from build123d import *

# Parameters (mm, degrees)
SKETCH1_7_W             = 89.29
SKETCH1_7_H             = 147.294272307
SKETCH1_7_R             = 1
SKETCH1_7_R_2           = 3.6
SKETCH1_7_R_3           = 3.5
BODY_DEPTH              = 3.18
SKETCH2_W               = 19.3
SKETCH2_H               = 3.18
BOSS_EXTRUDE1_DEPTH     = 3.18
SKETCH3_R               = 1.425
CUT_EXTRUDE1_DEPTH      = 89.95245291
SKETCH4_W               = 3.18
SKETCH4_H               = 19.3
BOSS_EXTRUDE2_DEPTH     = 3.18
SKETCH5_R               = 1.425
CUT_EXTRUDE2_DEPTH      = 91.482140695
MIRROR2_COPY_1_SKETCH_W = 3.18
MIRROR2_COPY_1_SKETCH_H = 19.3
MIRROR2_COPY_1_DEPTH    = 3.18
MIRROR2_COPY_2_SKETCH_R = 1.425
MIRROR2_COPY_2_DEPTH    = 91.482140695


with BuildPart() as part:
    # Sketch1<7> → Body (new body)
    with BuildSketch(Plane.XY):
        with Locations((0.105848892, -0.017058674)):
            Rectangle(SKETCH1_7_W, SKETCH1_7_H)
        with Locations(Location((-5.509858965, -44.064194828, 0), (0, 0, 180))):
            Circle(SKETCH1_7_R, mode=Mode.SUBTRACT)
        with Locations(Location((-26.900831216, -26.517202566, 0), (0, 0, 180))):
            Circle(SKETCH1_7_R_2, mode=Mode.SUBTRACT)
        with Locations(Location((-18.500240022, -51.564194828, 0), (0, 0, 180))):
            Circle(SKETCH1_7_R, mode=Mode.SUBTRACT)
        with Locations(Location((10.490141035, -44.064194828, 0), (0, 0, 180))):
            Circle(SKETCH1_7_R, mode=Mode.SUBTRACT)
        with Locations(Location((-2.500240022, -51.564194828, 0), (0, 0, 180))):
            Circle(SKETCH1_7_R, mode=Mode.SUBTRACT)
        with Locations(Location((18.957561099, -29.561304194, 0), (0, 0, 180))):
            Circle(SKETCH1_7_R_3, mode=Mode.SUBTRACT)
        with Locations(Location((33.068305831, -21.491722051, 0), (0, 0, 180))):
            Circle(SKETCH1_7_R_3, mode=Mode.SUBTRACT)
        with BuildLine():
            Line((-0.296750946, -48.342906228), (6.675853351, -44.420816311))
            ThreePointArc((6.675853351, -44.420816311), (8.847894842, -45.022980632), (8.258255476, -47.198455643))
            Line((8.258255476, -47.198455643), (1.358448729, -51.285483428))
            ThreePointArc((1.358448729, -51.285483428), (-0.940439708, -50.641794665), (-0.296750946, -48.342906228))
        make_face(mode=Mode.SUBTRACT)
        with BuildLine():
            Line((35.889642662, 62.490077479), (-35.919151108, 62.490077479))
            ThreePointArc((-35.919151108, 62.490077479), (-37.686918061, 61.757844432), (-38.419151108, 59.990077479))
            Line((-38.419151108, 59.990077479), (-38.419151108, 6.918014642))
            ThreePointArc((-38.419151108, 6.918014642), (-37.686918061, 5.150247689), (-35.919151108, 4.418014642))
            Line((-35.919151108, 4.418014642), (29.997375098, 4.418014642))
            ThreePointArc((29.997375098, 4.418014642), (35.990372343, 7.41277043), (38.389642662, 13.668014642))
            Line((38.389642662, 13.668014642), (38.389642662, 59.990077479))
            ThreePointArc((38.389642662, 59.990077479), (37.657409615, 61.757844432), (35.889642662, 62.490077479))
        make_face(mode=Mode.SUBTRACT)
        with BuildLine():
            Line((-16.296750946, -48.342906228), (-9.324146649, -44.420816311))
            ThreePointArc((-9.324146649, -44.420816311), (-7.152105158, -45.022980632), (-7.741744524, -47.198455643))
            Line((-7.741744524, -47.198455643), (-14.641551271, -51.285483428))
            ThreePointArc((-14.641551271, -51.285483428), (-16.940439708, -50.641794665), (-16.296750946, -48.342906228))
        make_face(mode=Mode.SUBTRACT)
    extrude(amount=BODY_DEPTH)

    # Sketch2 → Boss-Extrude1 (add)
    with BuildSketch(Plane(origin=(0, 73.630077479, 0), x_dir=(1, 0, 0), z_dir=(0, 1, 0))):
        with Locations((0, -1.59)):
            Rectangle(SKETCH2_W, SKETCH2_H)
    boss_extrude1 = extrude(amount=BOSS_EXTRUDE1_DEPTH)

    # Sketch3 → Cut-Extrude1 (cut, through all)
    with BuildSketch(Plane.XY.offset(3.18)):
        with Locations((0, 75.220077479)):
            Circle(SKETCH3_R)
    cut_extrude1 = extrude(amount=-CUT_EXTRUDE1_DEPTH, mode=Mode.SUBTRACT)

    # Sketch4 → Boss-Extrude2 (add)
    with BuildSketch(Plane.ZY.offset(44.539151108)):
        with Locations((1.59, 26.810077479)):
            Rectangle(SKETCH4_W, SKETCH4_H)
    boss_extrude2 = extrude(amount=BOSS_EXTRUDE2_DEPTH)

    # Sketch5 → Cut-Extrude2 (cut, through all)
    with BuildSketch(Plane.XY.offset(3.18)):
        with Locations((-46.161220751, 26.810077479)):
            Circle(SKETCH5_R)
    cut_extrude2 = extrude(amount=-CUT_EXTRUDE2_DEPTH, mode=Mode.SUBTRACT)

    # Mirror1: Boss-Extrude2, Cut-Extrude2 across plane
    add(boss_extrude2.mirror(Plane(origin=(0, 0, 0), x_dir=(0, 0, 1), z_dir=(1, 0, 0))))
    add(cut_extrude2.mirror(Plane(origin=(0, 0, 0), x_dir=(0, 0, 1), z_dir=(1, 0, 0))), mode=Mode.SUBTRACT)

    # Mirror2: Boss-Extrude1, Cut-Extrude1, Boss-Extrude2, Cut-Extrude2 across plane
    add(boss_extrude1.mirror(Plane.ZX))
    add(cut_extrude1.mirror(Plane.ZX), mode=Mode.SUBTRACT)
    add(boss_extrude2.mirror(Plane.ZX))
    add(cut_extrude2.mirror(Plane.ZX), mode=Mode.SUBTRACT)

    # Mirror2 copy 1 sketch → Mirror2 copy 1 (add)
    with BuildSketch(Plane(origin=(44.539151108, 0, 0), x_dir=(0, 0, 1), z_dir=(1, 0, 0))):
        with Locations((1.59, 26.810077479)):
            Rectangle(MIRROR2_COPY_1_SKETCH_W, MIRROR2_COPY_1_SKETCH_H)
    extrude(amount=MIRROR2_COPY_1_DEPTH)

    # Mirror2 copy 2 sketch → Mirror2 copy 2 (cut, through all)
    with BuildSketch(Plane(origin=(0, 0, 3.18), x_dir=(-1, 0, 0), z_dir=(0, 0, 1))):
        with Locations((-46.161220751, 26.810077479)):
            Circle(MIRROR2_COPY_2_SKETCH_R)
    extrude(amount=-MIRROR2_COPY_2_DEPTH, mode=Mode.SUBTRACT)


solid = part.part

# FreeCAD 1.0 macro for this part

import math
import FreeCAD as App
import Part
import Sketcher
from FreeCAD import Vector
Q = App.Units.Quantity

doc = App.newDocument("Part")
body = doc.addObject("PartDesign::Body", "Body")

# Sketch on XY plane
sketch1 = doc.addObject("Sketcher::SketchObject", "Sketch")
body.addObject(sketch1)
sketch1.AttachmentSupport = (doc.XY_Plane, [""])
sketch1.MapMode = "FlatFace"
sketch1.addGeometry([
    Part.LineSegment(Vector(-44.5, 73.6, 0), Vector(-44.5, -73.7, 0)),  # 0
    Part.LineSegment(Vector(-44.5, -73.7, 0), Vector(44.8, -73.7, 0)),  # 1
    Part.LineSegment(Vector(44.8, -73.7, 0), Vector(44.8, 73.6, 0)),  # 2
    Part.LineSegment(Vector(44.8, 73.6, 0), Vector(-44.5, 73.6, 0)),  # 3
    Part.Circle(Vector(-26.9, -26.5, 0), Vector(0, 0, 1), 3.6),  # 4
    Part.Circle(Vector(-18.5, -51.6, 0), Vector(0, 0, 1), 1),  # 5
    Part.ArcOfCircle(Part.Circle(Vector(-15.5, -49.8, 0), Vector(0, 0, 1), 1.7), math.radians(119), math.radians(299)),  # 6
    Part.LineSegment(Vector(-16.3, -48.3, 0), Vector(-9.3, -44.4, 0)),  # 7
    Part.ArcOfCircle(Part.Circle(Vector(-8.5, -45.8, 0), Vector(0, 0, 1), 1.6), math.radians(-60), math.radians(119)),  # 8
    Part.LineSegment(Vector(-7.7, -47.2, 0), Vector(-14.6, -51.3, 0)),  # 9
    Part.Circle(Vector(-2.5, -51.6, 0), Vector(0, 0, 1), 1),  # 10
    Part.Circle(Vector(-5.5, -44.1, 0), Vector(0, 0, 1), 1),  # 11
    Part.ArcOfCircle(Part.Circle(Vector(0.5, -49.8, 0), Vector(0, 0, 1), 1.7), math.radians(119), math.radians(299)),  # 12
    Part.LineSegment(Vector(-0.3, -48.3, 0), Vector(6.7, -44.4, 0)),  # 13
    Part.ArcOfCircle(Part.Circle(Vector(7.5, -45.8, 0), Vector(0, 0, 1), 1.6), math.radians(-60), math.radians(119)),  # 14
    Part.LineSegment(Vector(8.3, -47.2, 0), Vector(1.4, -51.3, 0)),  # 15
    Part.Circle(Vector(10.5, -44.1, 0), Vector(0, 0, 1), 1),  # 16
    Part.Circle(Vector(19, -29.6, 0), Vector(0, 0, 1), 3.5),  # 17
    Part.Circle(Vector(33.1, -21.5, 0), Vector(0, 0, 1), 3.5),  # 18
    Part.LineSegment(Vector(-35.9, 62.5, 0), Vector(35.9, 62.5, 0)),  # 19
    Part.ArcOfCircle(Part.Circle(Vector(35.9, 60, 0), Vector(0, 0, 1), 2.5), math.radians(0), math.radians(90)),  # 20
    Part.LineSegment(Vector(38.4, 60, 0), Vector(38.4, 13.7, 0)),  # 21
    Part.ArcOfCircle(Part.Circle(Vector(29.1, 13.6, 0), Vector(0, 0, 1), 9.2), math.radians(-85), math.radians(0)),  # 22
    Part.LineSegment(Vector(30, 4.4, 0), Vector(-35.9, 4.4, 0)),  # 23
    Part.ArcOfCircle(Part.Circle(Vector(-35.9, 6.9, 0), Vector(0, 0, 1), 2.5), math.radians(180), math.radians(270)),  # 24
    Part.LineSegment(Vector(-38.4, 6.9, 0), Vector(-38.4, 60, 0)),  # 25
    Part.ArcOfCircle(Part.Circle(Vector(-35.9, 60, 0), Vector(0, 0, 1), 2.5), math.radians(90), math.radians(180)),  # 26
], False)
sketch1.addConstraint([
    Sketcher.Constraint("Coincident", 0, 2, 1, 1),
    Sketcher.Constraint("Coincident", 1, 2, 2, 1),
    Sketcher.Constraint("Coincident", 2, 2, 3, 1),
    Sketcher.Constraint("Coincident", 3, 2, 0, 1),
    Sketcher.Constraint("Tangent", 6, 1, 7, 1),
    Sketcher.Constraint("Coincident", 7, 2, 8, 2),
    Sketcher.Constraint("Coincident", 8, 1, 9, 1),
    Sketcher.Constraint("Coincident", 9, 2, 6, 2),
    Sketcher.Constraint("Tangent", 12, 1, 13, 1),
    Sketcher.Constraint("Coincident", 13, 2, 14, 2),
    Sketcher.Constraint("Coincident", 14, 1, 15, 1),
    Sketcher.Constraint("Coincident", 15, 2, 12, 2),
    Sketcher.Constraint("Tangent", 19, 2, 20, 2),
    Sketcher.Constraint("Tangent", 20, 1, 21, 1),
    Sketcher.Constraint("Coincident", 21, 2, 22, 2),
    Sketcher.Constraint("Coincident", 22, 1, 23, 1),
    Sketcher.Constraint("Tangent", 23, 2, 24, 2),
    Sketcher.Constraint("Tangent", 24, 1, 25, 1),
    Sketcher.Constraint("Tangent", 25, 2, 26, 2),
    Sketcher.Constraint("Tangent", 26, 1, 19, 1),
    Sketcher.Constraint("Vertical", 0),
    Sketcher.Constraint("Horizontal", 1),
    Sketcher.Constraint("Vertical", 2),
    Sketcher.Constraint("Horizontal", 3),
    Sketcher.Constraint("Horizontal", 19),
    Sketcher.Constraint("Vertical", 21),
    Sketcher.Constraint("Horizontal", 23),
    Sketcher.Constraint("Vertical", 25),
    Sketcher.Constraint("Equal", 5, 10),
    Sketcher.Constraint("Equal", 10, 11),
    Sketcher.Constraint("Equal", 6, 12),
    Sketcher.Constraint("Equal", 8, 14),
    Sketcher.Constraint("Equal", 11, 16),
    Sketcher.Constraint("Equal", 17, 18),
    Sketcher.Constraint("Equal", 20, 24),
    Sketcher.Constraint("Equal", 24, 26),
    Sketcher.Constraint("Parallel", 7, 13),
    Sketcher.Constraint("Parallel", 9, 15),
    Sketcher.Constraint("Horizontal", 5, 3, 10, 3),
    Sketcher.Constraint("Horizontal", 6, 3, 12, 3),
    Sketcher.Constraint("Horizontal", 8, 3, 14, 3),
    Sketcher.Constraint("Horizontal", 11, 3, 16, 3),
    Sketcher.Constraint("Horizontal", 7, 2, 13, 2),
    Sketcher.Constraint("Horizontal", 8, 1, 14, 1),
    Sketcher.Constraint("Diameter", 5, Q("2 mm")),
    Sketcher.Constraint("Diameter", 17, Q("7 mm")),
    Sketcher.Constraint("Diameter", 4, Q("7.2 mm")),
    Sketcher.Constraint("Radius", 20, Q("2.5 mm")),
    Sketcher.Constraint("Radius", 22, Q("9.25 mm")),
    Sketcher.Constraint("Distance", 7, Q("8 mm")),
    Sketcher.Constraint("DistanceY", 6, 3, 8, 3, Q("4 mm")),
    Sketcher.Constraint("DistanceX", 5, 3, 10, 3, Q("16 mm")),
    Sketcher.Constraint("DistanceX", 6, 3, 12, 3, Q("16 mm")),
    Sketcher.Constraint("DistanceX", 11, 3, 16, 3, Q("16 mm")),
    Sketcher.Constraint("DistanceX", 1, 1, 1, 2, Q("89.29 mm")),
    Sketcher.Constraint("DistanceY", 10, 3, 11, 3, Q("7.5 mm")),
    Sketcher.Constraint("DistanceY", 0, 2, 5, 3, Q("22.1 mm")),
    Sketcher.Constraint("Radius", 6, Q("1.688079 mm")),
    Sketcher.Constraint("DistanceY", 5, 3, 6, 3, Q("1.75 mm")),
    Sketcher.Constraint("DistanceX", 24, 3, 6, 3, Q("20.45 mm")),
    Sketcher.Constraint("DistanceX", 0, 2, 6, 3, Q("29.07 mm")),
    Sketcher.Constraint("DistanceY", 20, 3, 2, 2, Q("13.64 mm")),
    Sketcher.Constraint("DistanceY", 22, 1, 21, 2, Q("9.25 mm")),
    Sketcher.Constraint("Radius", 8, Q("1.598407 mm")),
    Sketcher.Constraint("DistanceX", 10, 3, 17, 3, Q("21.457801 mm")),
    Sketcher.Constraint("DistanceY", 18, 3, 20, 3, Q("81.4818 mm")),
    Sketcher.Constraint("DistanceX", 16, 3, 20, 3, Q("25.399502 mm")),
    Sketcher.Constraint("DistanceX", 6, 1, 6, 3, Q("0.8276 mm")),
    Sketcher.Constraint("DistanceX", 6, 3, 9, 2, Q("0.8276 mm")),
    Sketcher.Constraint("DistanceX", 19, 1, 19, 2, Q("71.808794 mm")),
    Sketcher.Constraint("DistanceX", 23, 2, 23, 1, Q("65.916526 mm")),
    Sketcher.Constraint("DistanceY", 0, 2, 0, 1, Q("147.294272 mm")),
    Sketcher.Constraint("DistanceY", 21, 2, 21, 1, Q("46.322063 mm")),
    Sketcher.Constraint("DistanceX", 4, 3, -1, 1, Q("26.900831 mm")),
    Sketcher.Constraint("DistanceX", 5, 3, -1, 1, Q("18.50024 mm")),
    Sketcher.Constraint("DistanceX", 6, 3, -1, 1, Q("15.469151 mm")),
    Sketcher.Constraint("DistanceY", -1, 1, 22, 3, Q("13.628169 mm")),
    Sketcher.Constraint("DistanceY", 16, 3, 17, 3, Q("14.502891 mm")),
    Sketcher.Constraint("DistanceY", 4, 3, 20, 3, Q("86.50728 mm")),
    Sketcher.Constraint("DistanceY", 8, 1, 8, 3, Q("1.384261 mm")),
    Sketcher.Constraint("DistanceX", 22, 1, 18, 3, Q("3.070931 mm")),
])
pad1 = doc.addObject("PartDesign::Pad", "Pad")
body.addObject(pad1)
pad1.Profile = sketch1
pad1.Length = 3.18

# Sketch on XZ plane
sketch2 = doc.addObject("Sketcher::SketchObject", "Sketch001")
body.addObject(sketch2)
sketch2.AttachmentSupport = (doc.XZ_Plane, [""])
sketch2.MapMode = "FlatFace"
sketch2.AttachmentOffset = App.Placement(Vector(0, 0, -73.630077), App.Rotation())
sketch2.addGeometry([
    Part.LineSegment(Vector(-9.7, 0, 0), Vector(-9.7, 3.2, 0)),
    Part.LineSegment(Vector(-9.7, 3.2, 0), Vector(9.7, 3.2, 0)),
    Part.LineSegment(Vector(9.7, 3.2, 0), Vector(9.7, 0, 0)),
    Part.LineSegment(Vector(9.7, 0, 0), Vector(-9.7, 0, 0)),
], False)
sketch2.addConstraint([
    Sketcher.Constraint("Coincident", 0, 2, 1, 1),
    Sketcher.Constraint("Coincident", 1, 2, 2, 1),
    Sketcher.Constraint("Coincident", 2, 2, 3, 1),
    Sketcher.Constraint("Coincident", 3, 2, 0, 1),
    Sketcher.Constraint("Vertical", 0),
    Sketcher.Constraint("Horizontal", 1),
    Sketcher.Constraint("Vertical", 2),
    Sketcher.Constraint("Horizontal", 3),
    Sketcher.Constraint("Symmetric", 2, 2, 3, 2, -1, 1),
    Sketcher.Constraint("DistanceX", 1, 1, 1, 2, Q("19.3 mm")),
    Sketcher.Constraint("DistanceY", 0, 1, 0, 2, Q("3.18 mm")),
])
pad2 = doc.addObject("PartDesign::Pad", "Pad001")
body.addObject(pad2)
pad2.Profile = sketch2
pad2.Length = 3.18
pad2.Reversed = True

# Sketch on XY plane
sketch3 = doc.addObject("Sketcher::SketchObject", "Sketch002")
body.addObject(sketch3)
sketch3.AttachmentSupport = (doc.XY_Plane, [""])
sketch3.MapMode = "FlatFace"
sketch3.AttachmentOffset = App.Placement(Vector(0, 0, 3.18), App.Rotation())
sketch3.addGeometry(Part.Circle(Vector(0, 75.2, 0), Vector(0, 0, 1), 1.4), False)
sketch3.addConstraint([
    Sketcher.Constraint("PointOnObject", 0, 3, -2),
    Sketcher.Constraint("Diameter", 0, Q("2.85 mm")),
    Sketcher.Constraint("DistanceY", -1, 1, 0, 3, Q("75.220077 mm")),
])
pocket1 = doc.addObject("PartDesign::Pocket", "Pocket")
body.addObject(pocket1)
pocket1.Profile = sketch3
pocket1.Type = "ThroughAll"

# Sketch on YZ plane
sketch4 = doc.addObject("Sketcher::SketchObject", "Sketch003")
body.addObject(sketch4)
sketch4.AttachmentSupport = (doc.YZ_Plane, [""])
sketch4.MapMode = "FlatFace"
sketch4.AttachmentOffset = App.Placement(Vector(0, 0, -44.539151), App.Rotation())
sketch4.addGeometry([
    Part.LineSegment(Vector(36.5, 0, 0), Vector(17.2, 0, 0)),
    Part.LineSegment(Vector(17.2, 0, 0), Vector(17.2, 3.2, 0)),
    Part.LineSegment(Vector(17.2, 3.2, 0), Vector(36.5, 3.2, 0)),
    Part.LineSegment(Vector(36.5, 3.2, 0), Vector(36.5, 0, 0)),
], False)
sketch4.addConstraint([
    Sketcher.Constraint("Coincident", 0, 2, 1, 1),
    Sketcher.Constraint("Coincident", 1, 2, 2, 1),
    Sketcher.Constraint("Coincident", 2, 2, 3, 1),
    Sketcher.Constraint("Coincident", 3, 2, 0, 1),
    Sketcher.Constraint("Horizontal", 0),
    Sketcher.Constraint("Vertical", 1),
    Sketcher.Constraint("Horizontal", 2),
    Sketcher.Constraint("Vertical", 3),
    Sketcher.Constraint("PointOnObject", 0, 2, -1),
    Sketcher.Constraint("DistanceX", 0, 2, 0, 1, Q("19.3 mm")),
    Sketcher.Constraint("DistanceY", 1, 1, 1, 2, Q("3.18 mm")),
    Sketcher.Constraint("DistanceX", -1, 1, 0, 2, Q("17.160077 mm")),
])
pad3 = doc.addObject("PartDesign::Pad", "Pad002")
body.addObject(pad3)
pad3.Profile = sketch4
pad3.Length = 3.18
pad3.Reversed = True

# Sketch on XY plane
sketch5 = doc.addObject("Sketcher::SketchObject", "Sketch004")
body.addObject(sketch5)
sketch5.AttachmentSupport = (doc.XY_Plane, [""])
sketch5.MapMode = "FlatFace"
sketch5.AttachmentOffset = App.Placement(Vector(0, 0, 3.18), App.Rotation())
sketch5.addGeometry(Part.Circle(Vector(-46.2, 26.8, 0), Vector(0, 0, 1), 1.4), False)
sketch5.addConstraint([
    Sketcher.Constraint("Diameter", 0, Q("2.85 mm")),
    Sketcher.Constraint("DistanceX", 0, 3, -1, 1, Q("46.161221 mm")),
    Sketcher.Constraint("DistanceY", -1, 1, 0, 3, Q("26.810077 mm")),
])
pocket2 = doc.addObject("PartDesign::Pocket", "Pocket001")
body.addObject(pocket2)
pocket2.Profile = sketch5
pocket2.Type = "ThroughAll"
doc.recompute()

mirrored = doc.addObject("PartDesign::Mirrored", "Mirrored")
body.addObject(mirrored)
mirrored.Originals = [pad3, pocket2]
mirrored.MirrorPlane = (doc.YZ_Plane, [""])
body.Tip = mirrored
doc.recompute()

mirrored2 = doc.addObject("PartDesign::Mirrored", "Mirrored001")
body.addObject(mirrored2)
mirrored2.Originals = [pad2, pocket1, pad3, pocket2]
mirrored2.MirrorPlane = (doc.XZ_Plane, [""])
body.Tip = mirrored2

# Sketch on YZ plane
sketch6 = doc.addObject("Sketcher::SketchObject", "Sketch005")
body.addObject(sketch6)
sketch6.AttachmentSupport = (doc.YZ_Plane, [""])
sketch6.MapMode = "FlatFace"
sketch6.AttachmentOffset = App.Placement(Vector(0, 0, 44.539151), App.Rotation())
sketch6.addGeometry([
    Part.LineSegment(Vector(-36.5, 0, 0), Vector(-17.2, 0, 0)),
    Part.LineSegment(Vector(-17.2, 0, 0), Vector(-17.2, 3.2, 0)),
    Part.LineSegment(Vector(-17.2, 3.2, 0), Vector(-36.5, 3.2, 0)),
    Part.LineSegment(Vector(-36.5, 3.2, 0), Vector(-36.5, 0, 0)),
], False)
sketch6.addConstraint([
    Sketcher.Constraint("Coincident", 0, 2, 1, 1),
    Sketcher.Constraint("Coincident", 1, 2, 2, 1),
    Sketcher.Constraint("Coincident", 2, 2, 3, 1),
    Sketcher.Constraint("Coincident", 3, 2, 0, 1),
    Sketcher.Constraint("Horizontal", 0),
    Sketcher.Constraint("Vertical", 1),
    Sketcher.Constraint("Horizontal", 2),
    Sketcher.Constraint("Vertical", 3),
    Sketcher.Constraint("PointOnObject", 0, 2, -1),
    Sketcher.Constraint("DistanceX", 0, 1, 0, 2, Q("19.3 mm")),
    Sketcher.Constraint("DistanceY", 1, 1, 1, 2, Q("3.18 mm")),
    Sketcher.Constraint("DistanceX", 0, 2, -1, 1, Q("17.160077 mm")),
])
pad4 = doc.addObject("PartDesign::Pad", "Pad003")
body.addObject(pad4)
pad4.Profile = sketch6
pad4.Length = 3.18

# Sketch on XY plane
sketch7 = doc.addObject("Sketcher::SketchObject", "Sketch006")
body.addObject(sketch7)
sketch7.AttachmentSupport = (doc.XY_Plane, [""])
sketch7.MapMode = "FlatFace"
sketch7.AttachmentOffset = App.Placement(Vector(0, 0, 3.18), App.Rotation())
sketch7.addGeometry(Part.Circle(Vector(46.2, -26.8, 0), Vector(0, 0, 1), 1.4), False)
sketch7.addConstraint([
    Sketcher.Constraint("Diameter", 0, Q("2.85 mm")),
    Sketcher.Constraint("DistanceX", -1, 1, 0, 3, Q("46.161221 mm")),
    Sketcher.Constraint("DistanceY", 0, 3, -1, 1, Q("26.810077 mm")),
])
pocket3 = doc.addObject("PartDesign::Pocket", "Pocket002")
body.addObject(pocket3)
pocket3.Profile = sketch7
pocket3.Type = "ThroughAll"

doc.recompute()
